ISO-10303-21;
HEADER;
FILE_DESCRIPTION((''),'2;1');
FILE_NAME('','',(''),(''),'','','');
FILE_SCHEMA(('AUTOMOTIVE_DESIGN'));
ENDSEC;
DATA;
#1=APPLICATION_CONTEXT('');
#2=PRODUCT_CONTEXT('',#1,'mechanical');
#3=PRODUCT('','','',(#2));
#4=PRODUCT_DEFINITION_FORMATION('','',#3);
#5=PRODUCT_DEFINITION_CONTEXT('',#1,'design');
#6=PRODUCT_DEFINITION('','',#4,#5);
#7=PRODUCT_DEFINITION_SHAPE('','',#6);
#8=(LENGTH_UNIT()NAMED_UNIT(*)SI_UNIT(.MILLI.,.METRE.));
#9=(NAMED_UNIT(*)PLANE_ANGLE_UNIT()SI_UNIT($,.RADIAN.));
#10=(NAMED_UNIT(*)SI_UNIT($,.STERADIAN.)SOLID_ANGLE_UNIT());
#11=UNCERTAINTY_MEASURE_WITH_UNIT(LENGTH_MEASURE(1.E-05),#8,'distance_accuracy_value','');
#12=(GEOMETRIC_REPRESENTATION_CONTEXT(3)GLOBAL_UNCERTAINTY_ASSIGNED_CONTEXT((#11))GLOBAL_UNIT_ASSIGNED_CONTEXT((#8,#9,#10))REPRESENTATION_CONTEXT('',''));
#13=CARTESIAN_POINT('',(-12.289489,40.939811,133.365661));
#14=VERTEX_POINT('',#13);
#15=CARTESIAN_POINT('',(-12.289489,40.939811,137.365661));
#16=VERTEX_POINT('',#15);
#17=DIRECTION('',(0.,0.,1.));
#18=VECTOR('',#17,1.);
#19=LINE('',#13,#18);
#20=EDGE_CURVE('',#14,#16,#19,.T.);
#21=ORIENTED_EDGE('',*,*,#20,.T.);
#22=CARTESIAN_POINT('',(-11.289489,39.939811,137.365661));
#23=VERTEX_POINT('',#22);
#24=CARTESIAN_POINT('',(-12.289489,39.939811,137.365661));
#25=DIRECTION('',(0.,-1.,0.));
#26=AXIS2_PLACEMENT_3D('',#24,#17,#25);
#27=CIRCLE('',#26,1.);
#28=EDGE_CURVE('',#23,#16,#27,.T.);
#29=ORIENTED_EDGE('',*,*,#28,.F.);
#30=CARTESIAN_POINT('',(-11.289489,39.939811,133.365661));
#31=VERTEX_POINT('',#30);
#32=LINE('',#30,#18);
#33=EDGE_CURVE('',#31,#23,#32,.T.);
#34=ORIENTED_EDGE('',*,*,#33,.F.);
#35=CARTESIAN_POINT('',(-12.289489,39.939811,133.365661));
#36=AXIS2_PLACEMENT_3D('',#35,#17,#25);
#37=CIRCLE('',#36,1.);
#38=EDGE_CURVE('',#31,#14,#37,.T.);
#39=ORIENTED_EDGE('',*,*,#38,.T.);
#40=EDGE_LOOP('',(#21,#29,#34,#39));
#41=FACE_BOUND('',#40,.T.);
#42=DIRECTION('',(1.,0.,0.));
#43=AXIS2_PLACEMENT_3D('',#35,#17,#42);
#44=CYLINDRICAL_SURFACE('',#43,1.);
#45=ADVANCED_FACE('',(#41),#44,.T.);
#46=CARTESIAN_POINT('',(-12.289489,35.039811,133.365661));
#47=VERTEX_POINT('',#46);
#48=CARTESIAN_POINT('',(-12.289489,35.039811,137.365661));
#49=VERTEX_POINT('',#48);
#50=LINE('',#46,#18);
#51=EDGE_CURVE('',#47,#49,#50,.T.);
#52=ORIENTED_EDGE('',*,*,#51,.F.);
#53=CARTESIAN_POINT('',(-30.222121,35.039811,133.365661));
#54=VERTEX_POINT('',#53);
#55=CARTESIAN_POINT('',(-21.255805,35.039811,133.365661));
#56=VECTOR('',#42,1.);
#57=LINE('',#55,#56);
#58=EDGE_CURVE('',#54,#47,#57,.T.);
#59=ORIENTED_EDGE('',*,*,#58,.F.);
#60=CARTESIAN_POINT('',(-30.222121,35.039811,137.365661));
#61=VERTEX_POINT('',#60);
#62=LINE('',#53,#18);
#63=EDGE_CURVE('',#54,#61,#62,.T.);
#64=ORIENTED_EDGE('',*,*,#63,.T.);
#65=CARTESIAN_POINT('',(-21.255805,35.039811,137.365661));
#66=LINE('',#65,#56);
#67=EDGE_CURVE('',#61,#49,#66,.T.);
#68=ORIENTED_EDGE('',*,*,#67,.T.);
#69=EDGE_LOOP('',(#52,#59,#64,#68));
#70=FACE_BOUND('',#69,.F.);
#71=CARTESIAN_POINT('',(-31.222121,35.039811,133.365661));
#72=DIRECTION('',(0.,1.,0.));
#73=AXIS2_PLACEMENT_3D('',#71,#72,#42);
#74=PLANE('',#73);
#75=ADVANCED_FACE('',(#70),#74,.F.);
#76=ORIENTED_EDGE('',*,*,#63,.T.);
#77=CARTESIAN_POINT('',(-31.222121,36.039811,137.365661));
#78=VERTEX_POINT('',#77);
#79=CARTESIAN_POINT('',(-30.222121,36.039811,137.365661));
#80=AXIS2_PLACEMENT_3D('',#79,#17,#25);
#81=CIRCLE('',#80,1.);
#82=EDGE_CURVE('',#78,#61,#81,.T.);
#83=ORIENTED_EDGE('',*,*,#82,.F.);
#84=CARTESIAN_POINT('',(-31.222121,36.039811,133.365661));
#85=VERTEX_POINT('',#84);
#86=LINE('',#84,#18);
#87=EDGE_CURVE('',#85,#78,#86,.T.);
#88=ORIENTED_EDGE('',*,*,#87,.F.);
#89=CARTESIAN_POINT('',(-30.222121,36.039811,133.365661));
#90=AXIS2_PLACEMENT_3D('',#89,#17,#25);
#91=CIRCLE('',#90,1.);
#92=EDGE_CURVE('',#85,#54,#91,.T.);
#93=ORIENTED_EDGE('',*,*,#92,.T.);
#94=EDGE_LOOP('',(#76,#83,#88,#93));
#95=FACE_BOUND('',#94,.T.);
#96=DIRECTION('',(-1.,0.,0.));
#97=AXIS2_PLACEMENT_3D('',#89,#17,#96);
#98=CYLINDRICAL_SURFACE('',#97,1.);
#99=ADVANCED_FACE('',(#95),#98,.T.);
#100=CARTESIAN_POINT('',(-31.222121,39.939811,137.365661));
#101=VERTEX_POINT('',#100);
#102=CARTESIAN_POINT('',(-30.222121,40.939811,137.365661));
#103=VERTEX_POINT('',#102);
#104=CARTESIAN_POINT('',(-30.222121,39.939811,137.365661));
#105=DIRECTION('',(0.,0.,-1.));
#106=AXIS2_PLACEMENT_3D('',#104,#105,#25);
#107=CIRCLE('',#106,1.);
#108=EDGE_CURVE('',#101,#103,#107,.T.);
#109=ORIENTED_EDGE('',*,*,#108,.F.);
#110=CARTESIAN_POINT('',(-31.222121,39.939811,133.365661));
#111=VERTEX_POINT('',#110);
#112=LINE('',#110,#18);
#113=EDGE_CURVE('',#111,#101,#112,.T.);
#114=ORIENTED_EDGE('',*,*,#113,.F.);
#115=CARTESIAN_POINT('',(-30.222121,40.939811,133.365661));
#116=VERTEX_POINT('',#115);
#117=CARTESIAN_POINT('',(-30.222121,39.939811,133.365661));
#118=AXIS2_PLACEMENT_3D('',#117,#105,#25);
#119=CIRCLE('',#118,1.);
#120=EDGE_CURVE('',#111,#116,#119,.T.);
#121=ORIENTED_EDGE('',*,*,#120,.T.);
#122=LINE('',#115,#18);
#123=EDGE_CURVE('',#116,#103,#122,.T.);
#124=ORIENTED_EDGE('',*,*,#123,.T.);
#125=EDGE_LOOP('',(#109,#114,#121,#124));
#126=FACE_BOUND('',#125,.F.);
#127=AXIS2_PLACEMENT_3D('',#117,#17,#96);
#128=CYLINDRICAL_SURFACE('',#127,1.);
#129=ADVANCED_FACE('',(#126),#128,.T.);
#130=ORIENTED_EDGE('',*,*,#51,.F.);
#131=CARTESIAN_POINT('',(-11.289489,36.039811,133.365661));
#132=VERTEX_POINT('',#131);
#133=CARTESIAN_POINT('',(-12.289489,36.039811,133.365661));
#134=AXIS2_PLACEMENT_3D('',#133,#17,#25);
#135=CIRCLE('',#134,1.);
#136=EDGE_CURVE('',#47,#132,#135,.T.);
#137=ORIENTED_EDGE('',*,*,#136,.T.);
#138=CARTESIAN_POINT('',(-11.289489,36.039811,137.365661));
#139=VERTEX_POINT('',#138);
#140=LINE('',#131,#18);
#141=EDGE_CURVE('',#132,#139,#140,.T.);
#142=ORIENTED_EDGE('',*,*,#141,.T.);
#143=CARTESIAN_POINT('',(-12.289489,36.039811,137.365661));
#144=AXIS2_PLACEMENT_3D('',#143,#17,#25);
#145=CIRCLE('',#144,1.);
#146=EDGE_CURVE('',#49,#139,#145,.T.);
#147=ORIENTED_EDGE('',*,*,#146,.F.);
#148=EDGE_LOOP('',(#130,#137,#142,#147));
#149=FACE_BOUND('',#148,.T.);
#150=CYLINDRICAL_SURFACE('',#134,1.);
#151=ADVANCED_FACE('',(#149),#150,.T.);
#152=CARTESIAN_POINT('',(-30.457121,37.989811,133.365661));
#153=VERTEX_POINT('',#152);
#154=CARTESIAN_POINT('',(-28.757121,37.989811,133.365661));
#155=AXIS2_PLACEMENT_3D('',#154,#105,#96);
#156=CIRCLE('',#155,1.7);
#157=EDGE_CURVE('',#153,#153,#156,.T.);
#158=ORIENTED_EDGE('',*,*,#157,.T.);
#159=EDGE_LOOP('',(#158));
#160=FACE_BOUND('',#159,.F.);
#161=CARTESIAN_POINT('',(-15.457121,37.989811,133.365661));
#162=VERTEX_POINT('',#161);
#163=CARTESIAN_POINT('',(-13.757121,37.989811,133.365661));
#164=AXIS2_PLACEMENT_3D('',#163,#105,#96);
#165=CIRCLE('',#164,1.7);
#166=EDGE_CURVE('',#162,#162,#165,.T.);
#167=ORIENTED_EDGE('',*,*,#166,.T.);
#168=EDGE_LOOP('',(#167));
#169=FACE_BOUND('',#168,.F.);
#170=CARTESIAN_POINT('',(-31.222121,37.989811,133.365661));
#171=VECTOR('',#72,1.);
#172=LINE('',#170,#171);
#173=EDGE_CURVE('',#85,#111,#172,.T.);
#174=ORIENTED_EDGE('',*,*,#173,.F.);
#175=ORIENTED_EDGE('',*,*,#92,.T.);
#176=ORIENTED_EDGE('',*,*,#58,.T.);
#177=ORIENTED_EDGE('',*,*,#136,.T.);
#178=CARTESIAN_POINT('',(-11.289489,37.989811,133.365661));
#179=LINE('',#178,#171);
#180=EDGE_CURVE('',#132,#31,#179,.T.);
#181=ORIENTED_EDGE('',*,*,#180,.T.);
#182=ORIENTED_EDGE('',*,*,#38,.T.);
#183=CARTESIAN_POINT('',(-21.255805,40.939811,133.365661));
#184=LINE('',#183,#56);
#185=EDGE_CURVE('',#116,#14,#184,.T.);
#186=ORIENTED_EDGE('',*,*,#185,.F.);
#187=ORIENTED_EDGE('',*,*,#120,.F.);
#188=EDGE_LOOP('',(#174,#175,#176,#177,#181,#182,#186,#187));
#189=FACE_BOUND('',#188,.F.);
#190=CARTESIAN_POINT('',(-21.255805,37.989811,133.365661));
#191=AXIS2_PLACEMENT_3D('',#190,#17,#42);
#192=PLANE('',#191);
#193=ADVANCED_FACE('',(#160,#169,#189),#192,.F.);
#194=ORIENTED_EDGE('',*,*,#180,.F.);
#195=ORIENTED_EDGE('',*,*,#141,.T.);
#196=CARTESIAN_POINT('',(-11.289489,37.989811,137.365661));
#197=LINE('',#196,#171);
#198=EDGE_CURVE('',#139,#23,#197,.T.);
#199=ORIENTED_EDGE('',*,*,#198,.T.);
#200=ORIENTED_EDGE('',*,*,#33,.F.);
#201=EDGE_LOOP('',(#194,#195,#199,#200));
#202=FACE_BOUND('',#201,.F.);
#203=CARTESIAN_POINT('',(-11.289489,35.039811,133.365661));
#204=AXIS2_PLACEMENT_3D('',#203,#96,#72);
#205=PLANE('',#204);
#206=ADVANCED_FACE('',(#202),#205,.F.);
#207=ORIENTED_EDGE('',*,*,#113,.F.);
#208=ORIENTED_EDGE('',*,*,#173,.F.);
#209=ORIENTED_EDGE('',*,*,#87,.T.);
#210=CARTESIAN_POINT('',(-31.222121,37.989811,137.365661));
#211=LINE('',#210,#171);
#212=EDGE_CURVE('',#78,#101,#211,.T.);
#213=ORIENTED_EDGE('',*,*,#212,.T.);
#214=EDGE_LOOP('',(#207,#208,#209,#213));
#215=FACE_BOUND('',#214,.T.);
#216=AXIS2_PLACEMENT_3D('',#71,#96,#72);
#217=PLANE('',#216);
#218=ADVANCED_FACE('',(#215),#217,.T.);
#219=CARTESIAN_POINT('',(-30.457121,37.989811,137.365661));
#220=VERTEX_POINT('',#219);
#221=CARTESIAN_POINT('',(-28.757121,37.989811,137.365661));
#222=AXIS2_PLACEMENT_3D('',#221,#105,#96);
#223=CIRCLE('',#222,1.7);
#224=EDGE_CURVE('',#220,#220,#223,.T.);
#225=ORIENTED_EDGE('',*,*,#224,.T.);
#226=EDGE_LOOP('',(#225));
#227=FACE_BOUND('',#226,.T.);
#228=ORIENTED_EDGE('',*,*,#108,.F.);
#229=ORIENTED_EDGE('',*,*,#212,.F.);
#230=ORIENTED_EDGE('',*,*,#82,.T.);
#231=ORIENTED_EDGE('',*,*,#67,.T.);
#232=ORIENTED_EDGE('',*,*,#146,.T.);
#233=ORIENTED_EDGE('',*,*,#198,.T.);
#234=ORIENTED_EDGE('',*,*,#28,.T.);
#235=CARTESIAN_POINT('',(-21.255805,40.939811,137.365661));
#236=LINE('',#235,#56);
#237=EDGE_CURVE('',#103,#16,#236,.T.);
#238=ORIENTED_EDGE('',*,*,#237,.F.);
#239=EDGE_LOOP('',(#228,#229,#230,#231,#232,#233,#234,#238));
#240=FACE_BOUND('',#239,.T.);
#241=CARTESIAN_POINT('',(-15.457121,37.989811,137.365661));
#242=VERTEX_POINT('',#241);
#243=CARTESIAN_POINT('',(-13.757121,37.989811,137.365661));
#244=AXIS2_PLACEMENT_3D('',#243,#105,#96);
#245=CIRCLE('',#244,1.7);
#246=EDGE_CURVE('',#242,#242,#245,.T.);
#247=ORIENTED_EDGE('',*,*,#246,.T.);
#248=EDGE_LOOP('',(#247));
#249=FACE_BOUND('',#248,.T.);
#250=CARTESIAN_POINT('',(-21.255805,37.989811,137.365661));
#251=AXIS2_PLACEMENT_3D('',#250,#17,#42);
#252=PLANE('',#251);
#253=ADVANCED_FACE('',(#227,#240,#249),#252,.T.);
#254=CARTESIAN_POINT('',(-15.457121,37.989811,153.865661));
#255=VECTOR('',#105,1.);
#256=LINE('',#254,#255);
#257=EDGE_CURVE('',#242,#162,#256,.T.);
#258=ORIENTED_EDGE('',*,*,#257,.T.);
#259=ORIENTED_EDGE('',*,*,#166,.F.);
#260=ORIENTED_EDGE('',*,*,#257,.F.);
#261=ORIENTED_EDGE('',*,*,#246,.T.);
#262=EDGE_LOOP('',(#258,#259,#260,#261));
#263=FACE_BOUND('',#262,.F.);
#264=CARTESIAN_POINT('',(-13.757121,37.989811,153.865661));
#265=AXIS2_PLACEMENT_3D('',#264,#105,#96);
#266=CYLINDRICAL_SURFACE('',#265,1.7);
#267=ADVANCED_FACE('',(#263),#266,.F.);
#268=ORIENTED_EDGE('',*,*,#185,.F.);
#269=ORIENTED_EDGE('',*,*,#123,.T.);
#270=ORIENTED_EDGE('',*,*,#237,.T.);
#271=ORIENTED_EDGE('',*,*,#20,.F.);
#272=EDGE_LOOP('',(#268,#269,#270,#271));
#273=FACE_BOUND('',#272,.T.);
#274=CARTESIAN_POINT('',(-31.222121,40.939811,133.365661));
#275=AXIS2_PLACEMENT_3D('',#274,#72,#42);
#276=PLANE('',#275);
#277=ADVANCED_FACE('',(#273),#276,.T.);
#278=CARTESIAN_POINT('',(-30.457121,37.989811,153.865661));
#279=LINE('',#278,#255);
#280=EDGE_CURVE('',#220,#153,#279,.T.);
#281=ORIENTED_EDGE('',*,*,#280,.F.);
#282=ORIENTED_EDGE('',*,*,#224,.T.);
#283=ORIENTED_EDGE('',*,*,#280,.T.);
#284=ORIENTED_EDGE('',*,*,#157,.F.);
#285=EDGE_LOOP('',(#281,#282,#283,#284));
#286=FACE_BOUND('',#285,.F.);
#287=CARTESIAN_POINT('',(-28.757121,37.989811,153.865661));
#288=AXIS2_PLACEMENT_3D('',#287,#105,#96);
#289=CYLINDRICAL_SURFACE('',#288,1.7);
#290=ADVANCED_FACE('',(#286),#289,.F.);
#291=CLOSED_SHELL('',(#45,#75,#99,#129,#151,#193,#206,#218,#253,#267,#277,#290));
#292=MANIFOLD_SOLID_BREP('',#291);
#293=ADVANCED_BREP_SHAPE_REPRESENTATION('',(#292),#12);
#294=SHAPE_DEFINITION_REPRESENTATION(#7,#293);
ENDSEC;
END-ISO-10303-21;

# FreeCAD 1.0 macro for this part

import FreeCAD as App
import Part
import Sketcher
from FreeCAD import Vector


def edges_at(feature, points):
    """Names of the edges that pass closest to the given points."""
    edges = feature.Shape.Edges
    near = lambda p: min(range(len(edges)), key=lambda i: edges[i].distToShape(Part.Vertex(*p))[0])
    return sorted({f"Edge{near(p) + 1}" for p in points})

doc = App.newDocument("Part")
body = doc.addObject("PartDesign::Body", "Body")

# Sketch on XY plane
sketch1 = body.newObject("Sketcher::SketchObject", "Sketch")
sketch1.AttachmentSupport = (doc.getObject("XY_Plane"), [""])
sketch1.MapMode = "FlatFace"
sketch1.AttachmentOffset = App.Placement(Vector(0, 0, 133.365661), App.Rotation())
sketch1.addGeometry(Part.LineSegment(Vector(-31.222121, 40.939811, 0), Vector(-31.222121, 35.039811, 0)), False)
sketch1.addGeometry(Part.LineSegment(Vector(-31.222121, 35.039811, 0), Vector(-11.289489, 35.039811, 0)), False)
sketch1.addGeometry(Part.LineSegment(Vector(-11.289489, 35.039811, 0), Vector(-11.289489, 40.939811, 0)), False)
sketch1.addGeometry(Part.LineSegment(Vector(-11.289489, 40.939811, 0), Vector(-31.222121, 40.939811, 0)), False)
sketch1.addConstraint(Sketcher.Constraint("Coincident", 0, 2, 1, 1))
sketch1.addConstraint(Sketcher.Constraint("Coincident", 1, 2, 2, 1))
sketch1.addConstraint(Sketcher.Constraint("Coincident", 2, 2, 3, 1))
sketch1.addConstraint(Sketcher.Constraint("Coincident", 3, 2, 0, 1))
sketch1.addConstraint(Sketcher.Constraint("Vertical", 0))
sketch1.addConstraint(Sketcher.Constraint("Horizontal", 1))
sketch1.addConstraint(Sketcher.Constraint("Vertical", 2))
sketch1.addConstraint(Sketcher.Constraint("Horizontal", 3))
sketch1.addConstraint(Sketcher.Constraint("DistanceY", 0, 2, 0, 1, 5.9))
sketch1.addConstraint(Sketcher.Constraint("DistanceX", 1, 1, 1, 2, 19.932631))
sketch1.addConstraint(Sketcher.Constraint("DistanceX", 0, 2, -1, 1, 31.222121))
sketch1.addConstraint(Sketcher.Constraint("DistanceY", -1, 1, 0, 2, 35.039811))
pad1 = body.newObject("PartDesign::Pad", "Pad")
pad1.Profile = sketch1
pad1.Length = 4
doc.recompute()

fillet = body.newObject("PartDesign::Fillet", "Fillet")
fillet.Base = (pad1, edges_at(pad1, [
    (-31.222, 40.94, 135.366),
    (-11.289, 40.94, 135.366),
    (-11.289, 35.04, 135.366),
    (-31.222, 35.04, 135.366),
]))
fillet.Radius = 1

# Sketch on XY plane
sketch2 = body.newObject("Sketcher::SketchObject", "Sketch001")
sketch2.AttachmentSupport = (doc.getObject("XY_Plane"), [""])
sketch2.MapMode = "FlatFace"
sketch2.AttachmentOffset = App.Placement(Vector(0, 0, 137.365661), App.Rotation())
sketch2.addGeometry(Part.Circle(Vector(-28.757121, 37.989811, 0), Vector(0, 0, 1), 1.7), False)
sketch2.addGeometry(Part.Circle(Vector(-13.757121, 37.989811, 0), Vector(0, 0, 1), 1.7), False)
sketch2.addConstraint(Sketcher.Constraint("Equal", 0, 1))
sketch2.addConstraint(Sketcher.Constraint("Horizontal", 0, 3, 1, 3))
sketch2.addConstraint(Sketcher.Constraint("Diameter", 0, 3.4))
sketch2.addConstraint(Sketcher.Constraint("DistanceX", 0, 3, 1, 3, 15.0))
sketch2.addConstraint(Sketcher.Constraint("DistanceX", 0, 3, -1, 1, 28.757121))
sketch2.addConstraint(Sketcher.Constraint("DistanceY", -1, 1, 0, 3, 37.989811))
doc.recompute()
hole = body.newObject("PartDesign::Hole", "Hole")
hole.Profile = sketch2
hole.ThreadType = "None"
hole.Diameter = 3.4
hole.DepthType = "Dimension"
hole.Depth = 16.5
hole.DrillPoint = "Angled"
hole.DrillPointAngle = 118

doc.recompute()
